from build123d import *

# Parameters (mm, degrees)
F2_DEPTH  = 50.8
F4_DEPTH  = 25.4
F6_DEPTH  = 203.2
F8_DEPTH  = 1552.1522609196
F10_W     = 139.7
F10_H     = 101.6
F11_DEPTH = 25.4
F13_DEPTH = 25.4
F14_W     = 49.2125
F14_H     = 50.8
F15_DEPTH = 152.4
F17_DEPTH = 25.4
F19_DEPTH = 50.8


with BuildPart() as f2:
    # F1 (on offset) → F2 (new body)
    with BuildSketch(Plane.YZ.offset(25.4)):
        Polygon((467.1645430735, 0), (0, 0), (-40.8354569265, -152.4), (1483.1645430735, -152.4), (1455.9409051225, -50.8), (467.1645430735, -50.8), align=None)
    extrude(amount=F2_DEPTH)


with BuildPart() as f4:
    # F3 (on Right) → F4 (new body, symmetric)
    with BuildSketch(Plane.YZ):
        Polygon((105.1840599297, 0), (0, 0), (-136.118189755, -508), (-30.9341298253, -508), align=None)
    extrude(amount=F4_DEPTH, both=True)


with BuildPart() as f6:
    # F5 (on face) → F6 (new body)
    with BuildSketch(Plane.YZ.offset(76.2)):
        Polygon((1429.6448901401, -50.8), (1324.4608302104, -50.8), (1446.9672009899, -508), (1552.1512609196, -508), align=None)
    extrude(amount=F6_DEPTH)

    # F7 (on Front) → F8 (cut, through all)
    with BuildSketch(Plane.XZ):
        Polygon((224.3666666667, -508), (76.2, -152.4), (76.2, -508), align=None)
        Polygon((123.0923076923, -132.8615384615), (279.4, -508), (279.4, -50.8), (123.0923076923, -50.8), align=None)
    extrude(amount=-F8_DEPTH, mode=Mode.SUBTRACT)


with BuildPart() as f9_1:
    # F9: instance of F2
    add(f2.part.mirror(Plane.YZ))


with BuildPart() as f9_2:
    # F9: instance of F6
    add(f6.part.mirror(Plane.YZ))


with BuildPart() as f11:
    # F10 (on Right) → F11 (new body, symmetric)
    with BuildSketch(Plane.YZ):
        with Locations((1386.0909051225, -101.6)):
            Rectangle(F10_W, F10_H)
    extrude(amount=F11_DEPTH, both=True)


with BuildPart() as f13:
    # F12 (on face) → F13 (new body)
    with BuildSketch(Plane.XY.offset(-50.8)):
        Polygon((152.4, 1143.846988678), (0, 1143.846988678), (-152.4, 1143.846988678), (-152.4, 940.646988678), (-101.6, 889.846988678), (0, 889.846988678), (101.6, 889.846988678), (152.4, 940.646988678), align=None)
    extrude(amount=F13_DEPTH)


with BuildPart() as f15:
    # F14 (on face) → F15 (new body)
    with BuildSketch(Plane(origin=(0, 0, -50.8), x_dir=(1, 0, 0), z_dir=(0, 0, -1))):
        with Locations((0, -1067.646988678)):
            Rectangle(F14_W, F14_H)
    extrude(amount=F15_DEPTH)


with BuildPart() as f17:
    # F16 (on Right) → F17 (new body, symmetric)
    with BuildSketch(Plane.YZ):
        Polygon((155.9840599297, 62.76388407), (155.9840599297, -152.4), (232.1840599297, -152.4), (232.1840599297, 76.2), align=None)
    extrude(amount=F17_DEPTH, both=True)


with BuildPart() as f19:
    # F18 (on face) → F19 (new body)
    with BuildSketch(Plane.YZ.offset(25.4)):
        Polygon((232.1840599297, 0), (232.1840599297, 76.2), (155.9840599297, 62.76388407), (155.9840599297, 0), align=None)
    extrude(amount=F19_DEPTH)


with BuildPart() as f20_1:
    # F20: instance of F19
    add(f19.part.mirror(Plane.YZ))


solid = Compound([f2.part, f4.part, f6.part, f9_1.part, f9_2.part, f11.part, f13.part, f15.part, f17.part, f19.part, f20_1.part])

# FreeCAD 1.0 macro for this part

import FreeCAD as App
import Part
import Sketcher
from FreeCAD import Vector
Q = App.Units.Quantity

doc = App.newDocument("Part")
params = doc.addObject("Spreadsheet::Sheet", "Params")
for row, (alias, value) in enumerate([
    ("sketch1_width", "60 in"),
    ("sketch1_height", "2 in"),
    ("pad1_length", "2 in"),
    ("pad2_length", "2 in"),
    ("pad3_length", "8 in"),
    ("sketch4_height", "14 in"),
    ("sketch4_height2", "18 in"),
    ("sketch4_length", "16 in"),
    ("sketch5_height", "4 in"),
    ("sketch5_width", "5.5 in"),
    ("pad4_length", "2 in"),
    ("sketch6_width", "12 in"),
    ("sketch6_width2", "8 in"),
    ("pad5_length", "1 in"),
    ("sketch7_height", "2 in"),
    ("sketch7_width", "1.9375 in"),
    ("pad6_length", "6 in"),
    ("sketch8_width", "3 in"),
    ("sketch8_height", "9 in"),
    ("pad7_length", "2 in"),
    ("sketch9_width", "3 in"),
    ("pad8_length", "2 in"),
], start=1):
    params.set(f"A{row}", alias)
    params.set(f"B{row}", "=" + value)
    params.setAlias(f"B{row}", alias)

body = doc.addObject("PartDesign::Body", "Body")

sketch1 = doc.addObject("Sketcher::SketchObject", "Sketch")
body.addObject(sketch1)
sketch1.AttachmentSupport = (doc.YZ_Plane, [""])
sketch1.MapMode = "FlatFace"
sketch1.AttachmentOffset = App.Placement(Vector(0, 0, 1 * 25.4), App.Rotation())
sketch1.addGeometry([
    Part.LineSegment(Vector(467.164543, 0, 0), Vector(0, 0, 0)),
    Part.LineSegment(Vector(0, 0, 0), Vector(-40.835457, -152.4, 0)),
    Part.LineSegment(Vector(-40.835457, -152.4, 0), Vector(1483.164543, -152.4, 0)),
    Part.LineSegment(Vector(1483.164543, -152.4, 0), Vector(1455.940905, -50.8, 0)),
    Part.LineSegment(Vector(1455.940905, -50.8, 0), Vector(467.164543, -50.8, 0)),
    Part.LineSegment(Vector(467.164543, -50.8, 0), Vector(467.164543, 0, 0)),
], False)
sketch1.addConstraint([
    Sketcher.Constraint("Coincident", 0, 2, 1, 1),
    Sketcher.Constraint("Coincident", 1, 2, 2, 1),
    Sketcher.Constraint("Coincident", 2, 2, 3, 1),
    Sketcher.Constraint("Coincident", 3, 2, 4, 1),
    Sketcher.Constraint("Coincident", 4, 2, 5, 1),
    Sketcher.Constraint("Coincident", 5, 2, 0, 1),
    Sketcher.Constraint("Horizontal", 0),
    Sketcher.Constraint("Horizontal", 2),
    Sketcher.Constraint("Horizontal", 4),
    Sketcher.Constraint("Vertical", 5),
    Sketcher.Constraint("Coincident", 0, 2, -1, 1),
    Sketcher.Constraint("DistanceX", 2, 1, 2, 2, Q("60 in")),
    Sketcher.Constraint("DistanceY", 5, 1, 5, 2, Q("2 in")),
    Sketcher.Constraint("DistanceY", 1, 2, -1, 1, Q("6 in")),
    Sketcher.Constraint("Angle", 1, Q("-105 deg")),
    Sketcher.Constraint("Angle", 3, Q("105 deg")),
    Sketcher.Constraint("DistanceX", 1, 2, 4, 2, Q("20 in")),
])
sketch1.setExpression("Constraints[11]", "Params.sketch1_width")
sketch1.setExpression("Constraints[12]", "Params.sketch1_height")
pad1 = doc.addObject("PartDesign::Pad", "Pad")
body.addObject(pad1)
pad1.Profile = sketch1
pad1.setExpression("Length", "Params.pad1_length")
body2 = doc.addObject("PartDesign::Body", "Body001")

sketch2 = doc.addObject("Sketcher::SketchObject", "Sketch001")
body2.addObject(sketch2)
sketch2.AttachmentSupport = (doc.getObject("YZ_Plane001"), [""])
sketch2.MapMode = "FlatFace"
sketch2.addGeometry([
    Part.LineSegment(Vector(105.18406, 0, 0), Vector(0, 0, 0)),
    Part.LineSegment(Vector(0, 0, 0), Vector(-136.11819, -508, 0)),
    Part.LineSegment(Vector(-136.11819, -508, 0), Vector(-30.93413, -508, 0)),
    Part.LineSegment(Vector(-30.93413, -508, 0), Vector(105.18406, 0, 0)),
], False)
sketch2.addConstraint([
    Sketcher.Constraint("Coincident", 0, 2, 1, 1),
    Sketcher.Constraint("Coincident", 1, 2, 2, 1),
    Sketcher.Constraint("Coincident", 2, 2, 3, 1),
    Sketcher.Constraint("Coincident", 3, 2, 0, 1),
    Sketcher.Constraint("Horizontal", 0),
    Sketcher.Constraint("Horizontal", 2),
    Sketcher.Constraint("Coincident", 0, 2, -1, 1),
    Sketcher.Constraint("Parallel", 1, 3),
    Sketcher.Constraint("DistanceY", 1, 2, -1, 1, Q("20 in")),
    Sketcher.Constraint("Angle", 1, Q("-105 deg")),
    Sketcher.Constraint("DistanceX", 0, 2, 0, 1, 105.18406),
])
pad2 = doc.addObject("PartDesign::Pad", "Pad001")
body2.addObject(pad2)
pad2.Profile = sketch2
pad2.setExpression("Length", "Params.pad2_length")
pad2.Midplane = True
body3 = doc.addObject("PartDesign::Body", "Body002")

sketch3 = doc.addObject("Sketcher::SketchObject", "Sketch002")
body3.addObject(sketch3)
sketch3.AttachmentSupport = (doc.getObject("YZ_Plane002"), [""])
sketch3.MapMode = "FlatFace"
sketch3.AttachmentOffset = App.Placement(Vector(0, 0, 3 * 25.4), App.Rotation())
sketch3.addGeometry([
    Part.LineSegment(Vector(1429.64489, -50.8, 0), Vector(1324.46083, -50.8, 0)),
    Part.LineSegment(Vector(1324.46083, -50.8, 0), Vector(1446.967201, -508, 0)),
    Part.LineSegment(Vector(1446.967201, -508, 0), Vector(1552.151261, -508, 0)),
    Part.LineSegment(Vector(1552.151261, -508, 0), Vector(1429.64489, -50.8, 0)),
], False)
sketch3.addConstraint([
    Sketcher.Constraint("Coincident", 0, 2, 1, 1),
    Sketcher.Constraint("Coincident", 1, 2, 2, 1),
    Sketcher.Constraint("Coincident", 2, 2, 3, 1),
    Sketcher.Constraint("Coincident", 3, 2, 0, 1),
    Sketcher.Constraint("Horizontal", 0),
    Sketcher.Constraint("Horizontal", 2),
    Sketcher.Constraint("Parallel", 1, 3),
    Sketcher.Constraint("DistanceY", 0, 2, -1, 1, Q("2 in")),
    Sketcher.Constraint("DistanceY", 1, 2, -1, 1, Q("20 in")),
    Sketcher.Constraint("Angle", 1, Q("-75 deg")),
    Sketcher.Constraint("DistanceX", 0, 2, 0, 1, 105.18406),
    Sketcher.Constraint("DistanceX", -1, 1, 1, 2, 1446.967201),
])
pad3 = doc.addObject("PartDesign::Pad", "Pad002")
body3.addObject(pad3)
pad3.Profile = sketch3
pad3.setExpression("Length", "Params.pad3_length")

sketch4 = doc.addObject("Sketcher::SketchObject", "Sketch003")
body3.addObject(sketch4)
sketch4.AttachmentSupport = (doc.getObject("XZ_Plane002"), [""])
sketch4.MapMode = "FlatFace"
sketch4.addGeometry([
    Part.LineSegment(Vector(224.366667, -508, 0), Vector(76.2, -152.4, 0)),
    Part.LineSegment(Vector(76.2, -152.4, 0), Vector(76.2, -508, 0)),
    Part.LineSegment(Vector(76.2, -508, 0), Vector(224.366667, -508, 0)),
    Part.LineSegment(Vector(123.092308, -132.861538, 0), Vector(279.4, -508, 0)),
    Part.LineSegment(Vector(279.4, -508, 0), Vector(279.4, -50.8, 0)),
    Part.LineSegment(Vector(279.4, -50.8, 0), Vector(123.092308, -50.8, 0)),
    Part.LineSegment(Vector(123.092308, -50.8, 0), Vector(123.092308, -132.861538, 0)),
], False)
sketch4.addConstraint([
    Sketcher.Constraint("Coincident", 0, 2, 1, 1),
    Sketcher.Constraint("Coincident", 1, 2, 2, 1),
    Sketcher.Constraint("Coincident", 2, 2, 0, 1),
    Sketcher.Constraint("Coincident", 3, 2, 4, 1),
    Sketcher.Constraint("Coincident", 4, 2, 5, 1),
    Sketcher.Constraint("Coincident", 5, 2, 6, 1),
    Sketcher.Constraint("Coincident", 6, 2, 3, 1),
    Sketcher.Constraint("Vertical", 1),
    Sketcher.Constraint("Horizontal", 2),
    Sketcher.Constraint("Vertical", 4),
    Sketcher.Constraint("Horizontal", 5),
    Sketcher.Constraint("Vertical", 6),
    Sketcher.Constraint("Parallel", 0, 3),
    Sketcher.Constraint("Horizontal", 2, 2, 3, 2),
    Sketcher.Constraint("DistanceY", 1, 2, 1, 1, Q("14 in")),
    Sketcher.Constraint("DistanceY", 4, 1, 4, 2, Q("18 in")),
    Sketcher.Constraint("Distance", 3, Q("16 in")),
    Sketcher.Constraint("DistanceX", -1, 1, 0, 2, Q("3 in")),
    Sketcher.Constraint("DistanceY", 0, 2, -1, 1, Q("6 in")),
    Sketcher.Constraint("DistanceX", -1, 1, 3, 2, Q("11 in")),
    Sketcher.Constraint("DistanceY", 6, 2, 6, 1, 82.061538),
])
sketch4.setExpression("Constraints[14]", "Params.sketch4_height")
sketch4.setExpression("Constraints[15]", "Params.sketch4_height2")
sketch4.setExpression("Constraints[16]", "Params.sketch4_length")
pocket1 = doc.addObject("PartDesign::Pocket", "Pocket")
body3.addObject(pocket1)
pocket1.Profile = sketch4
pocket1.Type = "ThroughAll"
body4 = doc.addObject("PartDesign::Body", "Body003")
doc.recompute()

mirroring = doc.addObject("Part::Mirroring", "Mirroring")
mirroring.Source = body
mirroring.Base = Vector(0, 0, 0)
mirroring.Normal = Vector(1, 0, 0)
body4.BaseFeature = mirroring
doc.recompute()
body5 = doc.addObject("PartDesign::Body", "Body004")
doc.recompute()

mirroring2 = doc.addObject("Part::Mirroring", "Mirroring001")
mirroring2.Source = body3
mirroring2.Base = Vector(0, 0, 0)
mirroring2.Normal = Vector(1, 0, 0)
body5.BaseFeature = mirroring2
doc.recompute()
body6 = doc.addObject("PartDesign::Body", "Body005")

sketch5 = doc.addObject("Sketcher::SketchObject", "Sketch004")
body6.addObject(sketch5)
sketch5.AttachmentSupport = (doc.getObject("YZ_Plane005"), [""])
sketch5.MapMode = "FlatFace"
sketch5.addGeometry([
    Part.LineSegment(Vector(1316.240905, -50.8, 0), Vector(1316.240905, -152.4, 0)),
    Part.LineSegment(Vector(1316.240905, -152.4, 0), Vector(1455.940905, -152.4, 0)),
    Part.LineSegment(Vector(1455.940905, -152.4, 0), Vector(1455.940905, -50.8, 0)),
    Part.LineSegment(Vector(1455.940905, -50.8, 0), Vector(1316.240905, -50.8, 0)),
], False)
sketch5.addConstraint([
    Sketcher.Constraint("Coincident", 0, 2, 1, 1),
    Sketcher.Constraint("Coincident", 1, 2, 2, 1),
    Sketcher.Constraint("Coincident", 2, 2, 3, 1),
    Sketcher.Constraint("Coincident", 3, 2, 0, 1),
    Sketcher.Constraint("Vertical", 0),
    Sketcher.Constraint("Horizontal", 1),
    Sketcher.Constraint("Vertical", 2),
    Sketcher.Constraint("Horizontal", 3),
    Sketcher.Constraint("DistanceY", 0, 2, 0, 1, Q("4 in")),
    Sketcher.Constraint("DistanceX", 1, 1, 1, 2, Q("5.5 in")),
    Sketcher.Constraint("DistanceY", 0, 2, -1, 1, Q("6 in")),
    Sketcher.Constraint("DistanceX", -1, 1, 0, 2, 1316.240905),
])
sketch5.setExpression("Constraints[8]", "Params.sketch5_height")
sketch5.setExpression("Constraints[9]", "Params.sketch5_width")
pad4 = doc.addObject("PartDesign::Pad", "Pad003")
body6.addObject(pad4)
pad4.Profile = sketch5
pad4.setExpression("Length", "Params.pad4_length")
pad4.Midplane = True
body7 = doc.addObject("PartDesign::Body", "Body006")

sketch6 = doc.addObject("Sketcher::SketchObject", "Sketch005")
body7.addObject(sketch6)
sketch6.AttachmentSupport = (doc.getObject("XY_Plane006"), [""])
sketch6.MapMode = "FlatFace"
sketch6.AttachmentOffset = App.Placement(Vector(0, 0, -2 * 25.4), App.Rotation())
sketch6.addGeometry([
    Part.LineSegment(Vector(152.4, 1143.846989, 0), Vector(-152.4, 1143.846989, 0)),
    Part.LineSegment(Vector(-152.4, 1143.846989, 0), Vector(-152.4, 940.646989, 0)),
    Part.LineSegment(Vector(-152.4, 940.646989, 0), Vector(-101.6, 889.846989, 0)),
    Part.LineSegment(Vector(-101.6, 889.846989, 0), Vector(101.6, 889.846989, 0)),
    Part.LineSegment(Vector(101.6, 889.846989, 0), Vector(152.4, 940.646989, 0)),
    Part.LineSegment(Vector(152.4, 940.646989, 0), Vector(152.4, 1143.846989, 0)),
], False)
sketch6.addConstraint([
    Sketcher.Constraint("Coincident", 0, 2, 1, 1),
    Sketcher.Constraint("Coincident", 1, 2, 2, 1),
    Sketcher.Constraint("Coincident", 2, 2, 3, 1),
    Sketcher.Constraint("Coincident", 3, 2, 4, 1),
    Sketcher.Constraint("Coincident", 4, 2, 5, 1),
    Sketcher.Constraint("Coincident", 5, 2, 0, 1),
    Sketcher.Constraint("Horizontal", 0),
    Sketcher.Constraint("Vertical", 1),
    Sketcher.Constraint("Horizontal", 3),
    Sketcher.Constraint("Vertical", 5),
    Sketcher.Constraint("Symmetric", 1, 2, 4, 2, -2),
    Sketcher.Constraint("Perpendicular", 2, 4),
    Sketcher.Constraint("Equal", 3, 1),
    Sketcher.Constraint("Equal", 2, 4),
    Sketcher.Constraint("DistanceX", 0, 2, 0, 1, Q("12 in")),
    Sketcher.Constraint("DistanceX", 3, 1, 3, 2, Q("8 in")),
    Sketcher.Constraint("DistanceY", -1, 1, 0, 2, 1143.846989),
])
sketch6.setExpression("Constraints[14]", "Params.sketch6_width")
sketch6.setExpression("Constraints[15]", "Params.sketch6_width2")
pad5 = doc.addObject("PartDesign::Pad", "Pad004")
body7.addObject(pad5)
pad5.Profile = sketch6
pad5.setExpression("Length", "Params.pad5_length")
body8 = doc.addObject("PartDesign::Body", "Body007")

sketch7 = doc.addObject("Sketcher::SketchObject", "Sketch006")
body8.addObject(sketch7)
sketch7.AttachmentSupport = (doc.getObject("XY_Plane007"), [""])
sketch7.MapMode = "FlatFace"
sketch7.AttachmentOffset = App.Placement(Vector(0, 0, -2 * 25.4), App.Rotation())
sketch7.addGeometry([
    Part.LineSegment(Vector(-24.60625, 1042.246989, 0), Vector(-24.60625, 1093.046989, 0)),
    Part.LineSegment(Vector(-24.60625, 1093.046989, 0), Vector(24.60625, 1093.046989, 0)),
    Part.LineSegment(Vector(24.60625, 1093.046989, 0), Vector(24.60625, 1042.246989, 0)),
    Part.LineSegment(Vector(24.60625, 1042.246989, 0), Vector(-24.60625, 1042.246989, 0)),
], False)
sketch7.addConstraint([
    Sketcher.Constraint("Coincident", 0, 2, 1, 1),
    Sketcher.Constraint("Coincident", 1, 2, 2, 1),
    Sketcher.Constraint("Coincident", 2, 2, 3, 1),
    Sketcher.Constraint("Coincident", 3, 2, 0, 1),
    Sketcher.Constraint("Vertical", 0),
    Sketcher.Constraint("Horizontal", 1),
    Sketcher.Constraint("Vertical", 2),
    Sketcher.Constraint("Horizontal", 3),
    Sketcher.Constraint("DistanceY", 0, 1, 0, 2, Q("2 in")),
    Sketcher.Constraint("DistanceX", 1, 1, 1, 2, Q("1.9375 in")),
    Sketcher.Constraint("DistanceX", 0, 2, -1, 1, Q("0.96875 in")),
    Sketcher.Constraint("DistanceY", -1, 1, 0, 2, 1093.046989),
])
sketch7.setExpression("Constraints[8]", "Params.sketch7_height")
sketch7.setExpression("Constraints[9]", "Params.sketch7_width")
pad6 = doc.addObject("PartDesign::Pad", "Pad005")
body8.addObject(pad6)
pad6.Profile = sketch7
pad6.setExpression("Length", "Params.pad6_length")
pad6.Reversed = True
body9 = doc.addObject("PartDesign::Body", "Body008")

sketch8 = doc.addObject("Sketcher::SketchObject", "Sketch007")
body9.addObject(sketch8)
sketch8.AttachmentSupport = (doc.getObject("YZ_Plane008"), [""])
sketch8.MapMode = "FlatFace"
sketch8.addGeometry([
    Part.LineSegment(Vector(155.98406, 62.763884, 0), Vector(155.98406, -152.4, 0)),
    Part.LineSegment(Vector(155.98406, -152.4, 0), Vector(232.18406, -152.4, 0)),
    Part.LineSegment(Vector(232.18406, -152.4, 0), Vector(232.18406, 76.2, 0)),
    Part.LineSegment(Vector(232.18406, 76.2, 0), Vector(155.98406, 62.763884, 0)),
], False)
sketch8.addConstraint([
    Sketcher.Constraint("Coincident", 0, 2, 1, 1),
    Sketcher.Constraint("Coincident", 1, 2, 2, 1),
    Sketcher.Constraint("Coincident", 2, 2, 3, 1),
    Sketcher.Constraint("Coincident", 3, 2, 0, 1),
    Sketcher.Constraint("Vertical", 0),
    Sketcher.Constraint("Horizontal", 1),
    Sketcher.Constraint("Vertical", 2),
    Sketcher.Constraint("DistanceX", 1, 1, 1, 2, Q("3 in")),
    Sketcher.Constraint("DistanceY", 2, 1, 2, 2, Q("9 in")),
    Sketcher.Constraint("DistanceY", 0, 2, -1, 1, Q("6 in")),
    Sketcher.Constraint("Angle", 3, Q("-170 deg")),
    Sketcher.Constraint("DistanceX", -1, 1, 0, 2, 155.98406),
])
sketch8.setExpression("Constraints[7]", "Params.sketch8_width")
sketch8.setExpression("Constraints[8]", "Params.sketch8_height")
pad7 = doc.addObject("PartDesign::Pad", "Pad006")
body9.addObject(pad7)
pad7.Profile = sketch8
pad7.setExpression("Length", "Params.pad7_length")
pad7.Midplane = True
body10 = doc.addObject("PartDesign::Body", "Body009")

sketch9 = doc.addObject("Sketcher::SketchObject", "Sketch008")
body10.addObject(sketch9)
sketch9.AttachmentSupport = (doc.getObject("YZ_Plane009"), [""])
sketch9.MapMode = "FlatFace"
sketch9.AttachmentOffset = App.Placement(Vector(0, 0, 1 * 25.4), App.Rotation())
sketch9.addGeometry([
    Part.LineSegment(Vector(232.18406, 0, 0), Vector(232.18406, 76.2, 0)),
    Part.LineSegment(Vector(232.18406, 76.2, 0), Vector(155.98406, 62.763884, 0)),
    Part.LineSegment(Vector(155.98406, 62.763884, 0), Vector(155.98406, 0, 0)),
    Part.LineSegment(Vector(155.98406, 0, 0), Vector(232.18406, 0, 0)),
], False)
sketch9.addConstraint([
    Sketcher.Constraint("Coincident", 0, 2, 1, 1),
    Sketcher.Constraint("Coincident", 1, 2, 2, 1),
    Sketcher.Constraint("Coincident", 2, 2, 3, 1),
    Sketcher.Constraint("Coincident", 3, 2, 0, 1),
    Sketcher.Constraint("Vertical", 0),
    Sketcher.Constraint("Vertical", 2),
    Sketcher.Constraint("Horizontal", 3),
    Sketcher.Constraint("PointOnObject", 2, 2, -1),
    Sketcher.Constraint("Equal", 3, 0),
    Sketcher.Constraint("DistanceX", 3, 1, 3, 2, Q("3 in")),
    Sketcher.Constraint("Angle", 1, Q("-170 deg")),
    Sketcher.Constraint("DistanceX", -1, 1, 0, 2, 232.18406),
])
sketch9.setExpression("Constraints[9]", "Params.sketch9_width")
pad8 = doc.addObject("PartDesign::Pad", "Pad007")
body10.addObject(pad8)
pad8.Profile = sketch9
pad8.setExpression("Length", "Params.pad8_length")
body11 = doc.addObject("PartDesign::Body", "Body010")
doc.recompute()

mirroring3 = doc.addObject("Part::Mirroring", "Mirroring002")
mirroring3.Source = body10
mirroring3.Base = Vector(0, 0, 0)
mirroring3.Normal = Vector(1, 0, 0)
body11.BaseFeature = mirroring3
doc.recompute()
mirroring.Visibility = False
mirroring2.Visibility = False
mirroring3.Visibility = False

doc.recompute()
